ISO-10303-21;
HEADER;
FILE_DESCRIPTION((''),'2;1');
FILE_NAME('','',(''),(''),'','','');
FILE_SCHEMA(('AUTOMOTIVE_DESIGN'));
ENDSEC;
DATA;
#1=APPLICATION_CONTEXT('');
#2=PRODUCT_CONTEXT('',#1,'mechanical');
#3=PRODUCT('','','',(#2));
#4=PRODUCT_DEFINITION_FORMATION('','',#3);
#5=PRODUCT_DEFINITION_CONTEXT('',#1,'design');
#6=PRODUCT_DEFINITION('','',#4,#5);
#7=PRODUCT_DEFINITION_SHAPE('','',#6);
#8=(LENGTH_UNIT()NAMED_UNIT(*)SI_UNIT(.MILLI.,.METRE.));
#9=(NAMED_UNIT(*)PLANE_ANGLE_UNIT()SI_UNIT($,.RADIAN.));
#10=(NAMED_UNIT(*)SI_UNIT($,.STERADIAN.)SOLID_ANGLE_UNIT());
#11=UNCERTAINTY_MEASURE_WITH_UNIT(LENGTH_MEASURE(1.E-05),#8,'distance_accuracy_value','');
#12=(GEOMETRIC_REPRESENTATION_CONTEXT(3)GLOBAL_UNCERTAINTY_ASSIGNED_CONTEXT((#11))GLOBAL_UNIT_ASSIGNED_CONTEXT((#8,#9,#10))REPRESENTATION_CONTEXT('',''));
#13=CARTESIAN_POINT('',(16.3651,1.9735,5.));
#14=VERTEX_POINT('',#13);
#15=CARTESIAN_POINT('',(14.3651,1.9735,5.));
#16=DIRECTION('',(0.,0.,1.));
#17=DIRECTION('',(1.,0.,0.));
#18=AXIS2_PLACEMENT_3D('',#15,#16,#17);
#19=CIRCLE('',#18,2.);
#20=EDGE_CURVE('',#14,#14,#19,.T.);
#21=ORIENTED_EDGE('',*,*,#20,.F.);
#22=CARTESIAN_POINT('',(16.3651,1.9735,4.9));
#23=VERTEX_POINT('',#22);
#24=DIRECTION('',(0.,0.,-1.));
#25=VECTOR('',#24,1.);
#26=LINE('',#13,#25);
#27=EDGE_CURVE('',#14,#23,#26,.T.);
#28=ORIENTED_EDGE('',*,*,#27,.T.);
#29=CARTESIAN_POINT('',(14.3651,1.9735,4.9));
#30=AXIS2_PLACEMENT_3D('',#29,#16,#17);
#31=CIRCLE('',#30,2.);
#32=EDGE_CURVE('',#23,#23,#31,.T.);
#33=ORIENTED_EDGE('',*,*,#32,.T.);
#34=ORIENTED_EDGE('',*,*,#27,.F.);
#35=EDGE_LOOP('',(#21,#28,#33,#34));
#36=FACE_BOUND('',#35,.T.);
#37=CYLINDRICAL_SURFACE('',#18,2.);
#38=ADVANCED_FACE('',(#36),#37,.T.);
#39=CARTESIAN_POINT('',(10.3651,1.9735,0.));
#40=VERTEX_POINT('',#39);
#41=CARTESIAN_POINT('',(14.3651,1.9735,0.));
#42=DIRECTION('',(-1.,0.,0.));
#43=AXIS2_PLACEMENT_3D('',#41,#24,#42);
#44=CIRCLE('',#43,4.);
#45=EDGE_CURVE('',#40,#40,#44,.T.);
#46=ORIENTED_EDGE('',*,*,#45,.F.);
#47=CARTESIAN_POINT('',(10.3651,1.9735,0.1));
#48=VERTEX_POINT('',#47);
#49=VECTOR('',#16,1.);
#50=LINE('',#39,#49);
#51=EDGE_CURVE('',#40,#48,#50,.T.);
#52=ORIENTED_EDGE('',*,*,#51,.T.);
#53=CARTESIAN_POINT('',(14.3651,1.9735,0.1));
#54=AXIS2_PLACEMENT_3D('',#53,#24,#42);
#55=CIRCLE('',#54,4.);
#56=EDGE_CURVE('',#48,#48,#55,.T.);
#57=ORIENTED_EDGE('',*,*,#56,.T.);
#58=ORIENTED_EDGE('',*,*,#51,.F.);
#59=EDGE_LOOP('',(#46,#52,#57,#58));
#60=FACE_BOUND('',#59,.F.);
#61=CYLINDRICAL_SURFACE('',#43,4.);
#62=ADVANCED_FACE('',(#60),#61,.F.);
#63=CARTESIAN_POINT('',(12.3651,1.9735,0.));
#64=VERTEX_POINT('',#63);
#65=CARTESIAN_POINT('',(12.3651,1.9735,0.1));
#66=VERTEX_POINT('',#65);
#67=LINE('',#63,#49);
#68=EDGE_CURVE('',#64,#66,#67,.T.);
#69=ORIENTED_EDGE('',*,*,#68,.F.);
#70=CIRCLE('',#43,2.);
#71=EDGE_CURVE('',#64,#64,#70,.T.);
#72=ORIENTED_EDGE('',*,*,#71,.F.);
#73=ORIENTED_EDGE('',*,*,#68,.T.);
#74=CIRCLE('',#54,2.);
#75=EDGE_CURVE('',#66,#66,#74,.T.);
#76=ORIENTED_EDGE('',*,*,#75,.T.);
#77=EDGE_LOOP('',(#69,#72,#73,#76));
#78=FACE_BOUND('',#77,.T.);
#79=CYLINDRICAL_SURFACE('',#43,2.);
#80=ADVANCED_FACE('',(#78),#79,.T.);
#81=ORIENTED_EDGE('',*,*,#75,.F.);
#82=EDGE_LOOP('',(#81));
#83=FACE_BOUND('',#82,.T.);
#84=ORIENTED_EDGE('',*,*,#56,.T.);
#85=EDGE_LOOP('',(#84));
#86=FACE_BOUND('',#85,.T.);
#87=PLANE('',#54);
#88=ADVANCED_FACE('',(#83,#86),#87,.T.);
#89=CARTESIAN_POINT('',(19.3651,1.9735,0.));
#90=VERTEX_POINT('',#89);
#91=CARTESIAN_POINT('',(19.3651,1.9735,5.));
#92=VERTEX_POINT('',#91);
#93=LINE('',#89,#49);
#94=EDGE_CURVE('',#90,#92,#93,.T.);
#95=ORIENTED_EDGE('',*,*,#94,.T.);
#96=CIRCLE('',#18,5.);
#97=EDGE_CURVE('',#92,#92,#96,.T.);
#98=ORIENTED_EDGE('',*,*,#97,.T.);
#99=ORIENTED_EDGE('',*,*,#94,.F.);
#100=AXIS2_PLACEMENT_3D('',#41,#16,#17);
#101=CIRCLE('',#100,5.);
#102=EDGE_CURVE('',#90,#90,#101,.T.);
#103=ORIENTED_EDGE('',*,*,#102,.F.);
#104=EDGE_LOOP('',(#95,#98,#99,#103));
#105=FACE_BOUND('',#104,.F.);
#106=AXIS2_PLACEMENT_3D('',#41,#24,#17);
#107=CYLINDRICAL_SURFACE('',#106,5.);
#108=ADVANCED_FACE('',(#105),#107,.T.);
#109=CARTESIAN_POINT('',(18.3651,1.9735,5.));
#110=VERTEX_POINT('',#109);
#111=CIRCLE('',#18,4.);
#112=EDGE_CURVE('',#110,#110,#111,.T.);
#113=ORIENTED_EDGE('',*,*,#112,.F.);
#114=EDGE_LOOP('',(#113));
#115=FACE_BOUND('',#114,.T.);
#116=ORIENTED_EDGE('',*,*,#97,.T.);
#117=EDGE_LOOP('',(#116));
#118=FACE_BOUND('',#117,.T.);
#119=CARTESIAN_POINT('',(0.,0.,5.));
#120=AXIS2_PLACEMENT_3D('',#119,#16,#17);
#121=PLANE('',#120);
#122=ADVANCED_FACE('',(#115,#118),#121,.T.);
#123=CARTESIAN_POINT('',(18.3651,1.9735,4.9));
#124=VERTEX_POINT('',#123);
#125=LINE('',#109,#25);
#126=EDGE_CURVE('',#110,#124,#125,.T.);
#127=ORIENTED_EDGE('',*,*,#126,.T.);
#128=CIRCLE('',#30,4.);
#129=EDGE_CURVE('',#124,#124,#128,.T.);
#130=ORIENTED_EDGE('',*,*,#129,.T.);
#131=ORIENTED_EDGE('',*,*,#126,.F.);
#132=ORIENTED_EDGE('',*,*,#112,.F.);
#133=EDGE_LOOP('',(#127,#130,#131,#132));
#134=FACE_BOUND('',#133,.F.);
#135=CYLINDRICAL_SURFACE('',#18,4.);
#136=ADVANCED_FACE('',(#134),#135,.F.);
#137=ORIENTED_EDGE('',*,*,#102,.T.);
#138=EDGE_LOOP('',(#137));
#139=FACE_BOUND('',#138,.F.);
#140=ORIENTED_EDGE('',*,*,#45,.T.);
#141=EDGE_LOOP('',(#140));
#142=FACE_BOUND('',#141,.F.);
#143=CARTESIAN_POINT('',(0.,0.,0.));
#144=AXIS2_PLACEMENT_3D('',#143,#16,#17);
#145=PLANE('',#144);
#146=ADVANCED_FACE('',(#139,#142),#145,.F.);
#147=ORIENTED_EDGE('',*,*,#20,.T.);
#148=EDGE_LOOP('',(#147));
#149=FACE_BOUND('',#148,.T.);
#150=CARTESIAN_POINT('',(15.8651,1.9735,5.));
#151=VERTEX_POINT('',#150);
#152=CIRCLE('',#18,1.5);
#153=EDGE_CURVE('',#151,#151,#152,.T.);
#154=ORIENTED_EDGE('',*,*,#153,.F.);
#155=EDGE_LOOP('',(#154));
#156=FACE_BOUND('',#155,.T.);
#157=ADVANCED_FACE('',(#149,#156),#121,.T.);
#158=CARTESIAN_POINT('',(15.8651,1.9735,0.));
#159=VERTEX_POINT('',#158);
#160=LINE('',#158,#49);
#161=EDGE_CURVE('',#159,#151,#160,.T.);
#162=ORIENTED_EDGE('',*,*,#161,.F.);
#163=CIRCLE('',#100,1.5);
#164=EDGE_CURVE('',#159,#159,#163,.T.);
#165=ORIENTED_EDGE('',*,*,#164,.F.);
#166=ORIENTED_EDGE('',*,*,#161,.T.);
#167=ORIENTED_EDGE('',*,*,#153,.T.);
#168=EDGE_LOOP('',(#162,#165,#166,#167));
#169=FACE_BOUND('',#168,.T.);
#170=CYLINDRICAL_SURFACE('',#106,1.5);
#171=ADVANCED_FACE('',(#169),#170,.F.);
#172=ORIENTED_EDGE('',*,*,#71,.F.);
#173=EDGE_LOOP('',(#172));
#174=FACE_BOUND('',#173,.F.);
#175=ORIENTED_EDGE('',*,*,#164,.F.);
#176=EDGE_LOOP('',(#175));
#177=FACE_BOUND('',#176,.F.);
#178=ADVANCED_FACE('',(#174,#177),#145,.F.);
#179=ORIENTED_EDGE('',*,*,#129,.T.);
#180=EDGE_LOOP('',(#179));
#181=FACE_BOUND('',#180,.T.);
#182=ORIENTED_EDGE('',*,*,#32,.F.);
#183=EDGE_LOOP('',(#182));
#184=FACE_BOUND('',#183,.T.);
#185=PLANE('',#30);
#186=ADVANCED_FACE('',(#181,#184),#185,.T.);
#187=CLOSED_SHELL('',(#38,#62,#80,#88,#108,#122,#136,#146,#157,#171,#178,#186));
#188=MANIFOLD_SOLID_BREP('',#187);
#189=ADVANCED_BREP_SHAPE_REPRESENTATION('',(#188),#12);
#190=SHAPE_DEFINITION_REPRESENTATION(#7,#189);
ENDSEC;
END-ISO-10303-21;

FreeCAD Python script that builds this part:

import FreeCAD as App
import Part
import Sketcher
from FreeCAD import Vector
Q = App.Units.Quantity

doc = App.newDocument("Part")
body = doc.addObject("PartDesign::Body", "Body")

sketch1 = doc.addObject("Sketcher::SketchObject", "Sketch")
body.addObject(sketch1)
sketch1.AttachmentSupport = (doc.XY_Plane, [""])
sketch1.MapMode = "FlatFace"
sketch1.addGeometry([
    Part.Circle(Vector(14.4, 2, 0), Vector(0, 0, 1), 5),
    Part.Circle(Vector(14.4, 2, 0), Vector(0, 0, 1), 1.5),
], False)
sketch1.addConstraint([
    Sketcher.Constraint("Coincident", 1, 3, 0, 3),
    Sketcher.Constraint("Diameter", 0, Q("10 mm")),
    Sketcher.Constraint("Diameter", 1, Q("3 mm")),
    Sketcher.Constraint("DistanceX", -1, 1, 0, 3, Q("14.365 mm")),
    Sketcher.Constraint("DistanceY", -1, 1, 0, 3, Q("1.9735 mm")),
])
pad1 = doc.addObject("PartDesign::Pad", "Pad")
body.addObject(pad1)
pad1.Profile = sketch1
pad1.Length = 5

sketch2 = doc.addObject("Sketcher::SketchObject", "Sketch001")
body.addObject(sketch2)
sketch2.AttachmentSupport = (doc.XY_Plane, [""])
sketch2.MapMode = "FlatFace"
sketch2.AttachmentOffset = App.Placement(Vector(0, 0, 5), App.Rotation())
sketch2.addGeometry([
    Part.Circle(Vector(14.4, 2, 0), Vector(0, 0, 1), 4),
    Part.Circle(Vector(14.4, 2, 0), Vector(0, 0, 1), 2),
], False)
sketch2.addConstraint([
    Sketcher.Constraint("Coincident", 1, 3, 0, 3),
    Sketcher.Constraint("Diameter", 0, Q("8 mm")),
    Sketcher.Constraint("Diameter", 1, Q("4 mm")),
    Sketcher.Constraint("DistanceX", -1, 1, 0, 3, Q("14.365 mm")),
    Sketcher.Constraint("DistanceY", -1, 1, 0, 3, Q("1.9735 mm")),
])
pocket1 = doc.addObject("PartDesign::Pocket", "Pocket")
body.addObject(pocket1)
pocket1.Profile = sketch2
pocket1.Length = 0.1

sketch3 = doc.addObject("Sketcher::SketchObject", "Sketch002")
body.addObject(sketch3)
sketch3.AttachmentSupport = (doc.XY_Plane, [""])
sketch3.MapMode = "FlatFace"
sketch3.addGeometry([
    Part.Circle(Vector(14.4, 2, 0), Vector(0, 0, 1), 4),
    Part.Circle(Vector(14.4, 2, 0), Vector(0, 0, 1), 2),
], False)
sketch3.addConstraint([
    Sketcher.Constraint("Coincident", 1, 3, 0, 3),
    Sketcher.Constraint("Diameter", 0, Q("8 mm")),
    Sketcher.Constraint("Diameter", 1, Q("4 mm")),
    Sketcher.Constraint("DistanceX", -1, 1, 0, 3, Q("14.365 mm")),
    Sketcher.Constraint("DistanceY", -1, 1, 0, 3, Q("1.9735 mm")),
])
pocket2 = doc.addObject("PartDesign::Pocket", "Pocket001")
body.addObject(pocket2)
pocket2.Profile = sketch3
pocket2.Length = 0.1
pocket2.Reversed = True

doc.recompute()
